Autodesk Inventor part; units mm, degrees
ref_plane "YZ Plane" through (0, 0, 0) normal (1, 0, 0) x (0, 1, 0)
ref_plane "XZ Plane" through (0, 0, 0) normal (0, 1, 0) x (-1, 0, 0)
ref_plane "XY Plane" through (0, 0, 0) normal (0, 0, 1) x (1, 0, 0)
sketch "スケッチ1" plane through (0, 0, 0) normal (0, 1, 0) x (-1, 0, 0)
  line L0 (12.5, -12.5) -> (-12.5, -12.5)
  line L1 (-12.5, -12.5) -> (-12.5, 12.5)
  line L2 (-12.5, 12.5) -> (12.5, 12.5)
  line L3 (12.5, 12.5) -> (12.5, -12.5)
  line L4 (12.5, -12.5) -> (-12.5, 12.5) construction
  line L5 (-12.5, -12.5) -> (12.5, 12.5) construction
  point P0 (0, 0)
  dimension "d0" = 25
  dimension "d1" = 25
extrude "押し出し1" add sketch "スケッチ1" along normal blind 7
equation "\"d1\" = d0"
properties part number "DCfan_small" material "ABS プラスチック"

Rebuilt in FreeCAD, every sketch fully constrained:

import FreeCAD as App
import Part
import Sketcher
Q = App.Units.Quantity

doc = App.newDocument("Part")
body = doc.addObject("PartDesign::Body", "Body")

# Sketch on XZ plane
sketch1 = body.newObject("Sketcher::SketchObject", "Sketch")
sketch1.AttachmentSupport = (doc.getObject("XZ_Plane"), [""])
sketch1.MapMode = "FlatFace"
sketch1.addGeometry(Part.LineSegment(App.Vector(12.5, -12.5, 0), App.Vector(-12.5, -12.5, 0)), False)
sketch1.addGeometry(Part.LineSegment(App.Vector(-12.5, -12.5, 0), App.Vector(-12.5, 12.5, 0)), False)
sketch1.addGeometry(Part.LineSegment(App.Vector(-12.5, 12.5, 0), App.Vector(12.5, 12.5, 0)), False)
sketch1.addGeometry(Part.LineSegment(App.Vector(12.5, 12.5, 0), App.Vector(12.5, -12.5, 0)), False)
sketch1.addConstraint(Sketcher.Constraint("Coincident", 0, 2, 1, 1))
sketch1.addConstraint(Sketcher.Constraint("Coincident", 1, 2, 2, 1))
sketch1.addConstraint(Sketcher.Constraint("Coincident", 2, 2, 3, 1))
sketch1.addConstraint(Sketcher.Constraint("Coincident", 3, 2, 0, 1))
sketch1.addConstraint(Sketcher.Constraint("Horizontal", 0))
sketch1.addConstraint(Sketcher.Constraint("Vertical", 1))
sketch1.addConstraint(Sketcher.Constraint("Horizontal", 2))
sketch1.addConstraint(Sketcher.Constraint("Vertical", 3))
sketch1.addConstraint(Sketcher.Constraint("Symmetric", 0, 2, 2, 2, -1, 1))
sketch1.addConstraint(Sketcher.Constraint("Equal", 2, 1))
sketch1.addConstraint(Sketcher.Constraint("DistanceX", 0, 2, 0, 1, Q("25 mm")))
pad1 = body.newObject("PartDesign::Pad", "Pad")
pad1.Profile = sketch1
pad1.Length = 7
pad1.Reversed = True

doc.recompute()
